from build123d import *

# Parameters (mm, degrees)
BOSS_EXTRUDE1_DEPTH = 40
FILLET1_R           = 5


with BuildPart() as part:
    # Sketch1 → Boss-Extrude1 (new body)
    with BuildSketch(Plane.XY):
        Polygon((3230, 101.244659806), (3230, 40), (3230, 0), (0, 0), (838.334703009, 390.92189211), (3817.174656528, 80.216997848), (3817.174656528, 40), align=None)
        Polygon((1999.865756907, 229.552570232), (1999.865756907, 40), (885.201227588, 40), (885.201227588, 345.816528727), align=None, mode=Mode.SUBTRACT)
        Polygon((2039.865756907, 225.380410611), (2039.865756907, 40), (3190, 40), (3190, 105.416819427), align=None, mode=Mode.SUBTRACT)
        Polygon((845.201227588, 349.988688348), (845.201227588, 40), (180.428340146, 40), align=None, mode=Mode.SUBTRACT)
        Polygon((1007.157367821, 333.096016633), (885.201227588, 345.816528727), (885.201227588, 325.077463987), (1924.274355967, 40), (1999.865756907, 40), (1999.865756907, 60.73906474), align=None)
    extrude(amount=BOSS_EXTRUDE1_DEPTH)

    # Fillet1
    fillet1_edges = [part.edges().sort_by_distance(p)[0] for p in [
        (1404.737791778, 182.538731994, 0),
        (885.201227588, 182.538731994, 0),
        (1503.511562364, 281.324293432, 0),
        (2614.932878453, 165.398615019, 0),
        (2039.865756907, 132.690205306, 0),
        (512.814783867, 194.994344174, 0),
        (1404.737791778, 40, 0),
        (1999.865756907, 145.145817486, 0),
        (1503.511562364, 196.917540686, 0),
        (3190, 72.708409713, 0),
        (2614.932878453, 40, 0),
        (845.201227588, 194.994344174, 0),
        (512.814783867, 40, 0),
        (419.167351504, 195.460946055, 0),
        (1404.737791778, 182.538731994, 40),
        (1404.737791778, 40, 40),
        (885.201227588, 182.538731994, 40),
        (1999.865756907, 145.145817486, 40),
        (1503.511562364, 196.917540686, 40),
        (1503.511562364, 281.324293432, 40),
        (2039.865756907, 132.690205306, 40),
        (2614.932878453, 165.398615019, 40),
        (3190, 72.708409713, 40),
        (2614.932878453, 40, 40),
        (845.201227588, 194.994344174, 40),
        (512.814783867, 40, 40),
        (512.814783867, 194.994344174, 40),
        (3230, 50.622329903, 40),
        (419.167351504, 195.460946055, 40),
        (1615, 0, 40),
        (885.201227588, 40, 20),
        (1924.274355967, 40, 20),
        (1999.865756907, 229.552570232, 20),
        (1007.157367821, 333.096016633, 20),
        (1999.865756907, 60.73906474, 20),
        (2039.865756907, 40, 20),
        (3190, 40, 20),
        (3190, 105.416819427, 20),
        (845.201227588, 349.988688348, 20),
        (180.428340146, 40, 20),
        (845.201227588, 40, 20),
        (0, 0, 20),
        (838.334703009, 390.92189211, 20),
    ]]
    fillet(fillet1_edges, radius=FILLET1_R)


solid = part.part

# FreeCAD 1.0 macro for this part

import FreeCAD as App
import Part
import Sketcher
Q = App.Units.Quantity


def edges_at(feature, points):
    """Names of the edges that pass closest to the given points."""
    edges = feature.Shape.Edges
    near = lambda p: min(range(len(edges)), key=lambda i: edges[i].distToShape(Part.Vertex(*p))[0])
    return sorted({f"Edge{near(p) + 1}" for p in points})


def add_polygon(sketch, points):
    """Adds a closed chain of lines whose ends are joined by coincident constraints."""
    first, n = sketch.GeometryCount, len(points)
    for a, b in zip(points, points[1:] + points[:1]):
        sketch.addGeometry(Part.LineSegment(App.Vector(*a, 0), App.Vector(*b, 0)), False)
    for i in range(n):
        sketch.addConstraint(Sketcher.Constraint("Coincident", first + i, 2, first + (i + 1) % n, 1))

doc = App.newDocument("Part")
body = doc.addObject("PartDesign::Body", "Body")

sketch1 = body.newObject("Sketcher::SketchObject", "Sketch")
sketch1.AttachmentSupport = (doc.getObject("XY_Plane"), [""])
sketch1.MapMode = "FlatFace"
add_polygon(sketch1, [(3230, 0), (3230, 101.24466), (3817.174657, 40), (3817.174657, 80.216998), (838.334703, 390.921892), (0, 0)])
add_polygon(sketch1, [(2039.865757, 225.380411), (3190, 105.416819), (3190, 40), (2039.865757, 40)])
add_polygon(sketch1, [(1999.865757, 229.55257), (1999.865757, 60.739065), (1007.157368, 333.096017)])
add_polygon(sketch1, [(1924.274356, 40), (885.201228, 40), (885.201228, 325.077464)])
add_polygon(sketch1, [(845.201228, 349.988688), (845.201228, 40), (180.42834, 40)])
sketch1.addConstraint(Sketcher.Constraint("Vertical", 0))
sketch1.addConstraint(Sketcher.Constraint("Vertical", 2))
sketch1.addConstraint(Sketcher.Constraint("Horizontal", 5))
sketch1.addConstraint(Sketcher.Constraint("Vertical", 7))
sketch1.addConstraint(Sketcher.Constraint("Horizontal", 8))
sketch1.addConstraint(Sketcher.Constraint("Vertical", 9))
sketch1.addConstraint(Sketcher.Constraint("Vertical", 10))
sketch1.addConstraint(Sketcher.Constraint("Horizontal", 13))
sketch1.addConstraint(Sketcher.Constraint("Vertical", 14))
sketch1.addConstraint(Sketcher.Constraint("Vertical", 16))
sketch1.addConstraint(Sketcher.Constraint("Horizontal", 17))
sketch1.addConstraint(Sketcher.Constraint("Coincident", 4, 2, -1, 1))
sketch1.addConstraint(Sketcher.Constraint("Parallel", 1, 3))
sketch1.addConstraint(Sketcher.Constraint("Parallel", 3, 6))
sketch1.addConstraint(Sketcher.Constraint("Parallel", 6, 12))
sketch1.addConstraint(Sketcher.Constraint("Parallel", 11, 15))
sketch1.addConstraint(Sketcher.Constraint("Parallel", 4, 18))
sketch1.addConstraint(Sketcher.Constraint("Horizontal", 1, 2, 7, 2))
sketch1.addConstraint(Sketcher.Constraint("Horizontal", 8, 2, 13, 2))
sketch1.addConstraint(Sketcher.Constraint("Horizontal", 15, 2, 16, 2))
sketch1.addConstraint(Sketcher.Constraint("DistanceX", 5, 1, 5, 2, Q("3230 mm")))
sketch1.addConstraint(Sketcher.Constraint("Angle", 4, Q("-155 deg")))
sketch1.addConstraint(Sketcher.Constraint("Distance", 3, Q("2995 mm")))
sketch1.addConstraint(Sketcher.Constraint("Distance", 4, Q("925 mm")))
sketch1.addConstraint(Sketcher.Constraint("DistanceY", -1, 1, 1, 2, Q("40 mm")))
sketch1.addConstraint(Sketcher.Constraint("DistanceX", -1, 1, 6, 2, Q("3190 mm")))
sketch1.addConstraint(Sketcher.Constraint("DistanceX", 10, 2, 8, 2, Q("40 mm")))
sketch1.addConstraint(Sketcher.Constraint("DistanceX", 16, 2, 13, 2, Q("40 mm")))
sketch1.addConstraint(Sketcher.Constraint("DistanceX", 13, 2, 13, 1, Q("1039.073128 mm")))
sketch1.addConstraint(Sketcher.Constraint("DistanceY", 0, 1, 0, 2, Q("101.24466 mm")))
sketch1.addConstraint(Sketcher.Constraint("DistanceY", 7, 2, 7, 1, Q("65.416819 mm")))
sketch1.addConstraint(Sketcher.Constraint("DistanceY", 9, 1, 9, 2, Q("185.380411 mm")))
sketch1.addConstraint(Sketcher.Constraint("DistanceY", 16, 2, 16, 1, Q("309.988688 mm")))
sketch1.addConstraint(Sketcher.Constraint("DistanceX", 15, 2, 10, 2, Q("75.591401 mm")))
sketch1.addConstraint(Sketcher.Constraint("Distance", 12, Q("998.093779 mm")))
sketch1.addConstraint(Sketcher.Constraint("DistanceY", 10, 2, 10, 1, Q("168.813505 mm")))
sketch1.addConstraint(Sketcher.Constraint("DistanceY", -1, 1, 12, 2, Q("229.55257 mm")))
pad1 = body.newObject("PartDesign::Pad", "Pad")
pad1.Profile = sketch1
pad1.Length = 40
doc.recompute()

fillet = body.newObject("PartDesign::Fillet", "Fillet")
fillet.Base = (pad1, edges_at(pad1, [
    (1404.738, 182.539, 0),
    (885.201, 182.539, 0),
    (1503.512, 281.324, 0),
    (2614.933, 165.399, 0),
    (2039.866, 132.69, 0),
    (512.815, 194.994, 0),
    (1404.738, 40, 0),
    (1999.866, 145.146, 0),
    (1503.512, 196.918, 0),
    (3190, 72.708, 0),
    (2614.933, 40, 0),
    (845.201, 194.994, 0),
    (512.815, 40, 0),
    (419.167, 195.461, 0),
    (1404.738, 182.539, 40),
    (1404.738, 40, 40),
    (885.201, 182.539, 40),
    (1999.866, 145.146, 40),
    (1503.512, 196.918, 40),
    (1503.512, 281.324, 40),
    (2039.866, 132.69, 40),
    (2614.933, 165.399, 40),
    (3190, 72.708, 40),
    (2614.933, 40, 40),
    (845.201, 194.994, 40),
    (512.815, 40, 40),
    (512.815, 194.994, 40),
    (3230, 50.622, 40),
    (419.167, 195.461, 40),
    (1615, 0, 40),
    (885.201, 40, 20),
    (1924.274, 40, 20),
    (1999.866, 229.553, 20),
    (1007.157, 333.096, 20),
    (1999.866, 60.739, 20),
    (2039.866, 40, 20),
    (3190, 40, 20),
    (3190, 105.417, 20),
    (845.201, 349.989, 20),
    (180.428, 40, 20),
    (845.201, 40, 20),
    (0, 0, 20),
    (838.335, 390.922, 20),
]))
fillet.Radius = 5

doc.recompute()
